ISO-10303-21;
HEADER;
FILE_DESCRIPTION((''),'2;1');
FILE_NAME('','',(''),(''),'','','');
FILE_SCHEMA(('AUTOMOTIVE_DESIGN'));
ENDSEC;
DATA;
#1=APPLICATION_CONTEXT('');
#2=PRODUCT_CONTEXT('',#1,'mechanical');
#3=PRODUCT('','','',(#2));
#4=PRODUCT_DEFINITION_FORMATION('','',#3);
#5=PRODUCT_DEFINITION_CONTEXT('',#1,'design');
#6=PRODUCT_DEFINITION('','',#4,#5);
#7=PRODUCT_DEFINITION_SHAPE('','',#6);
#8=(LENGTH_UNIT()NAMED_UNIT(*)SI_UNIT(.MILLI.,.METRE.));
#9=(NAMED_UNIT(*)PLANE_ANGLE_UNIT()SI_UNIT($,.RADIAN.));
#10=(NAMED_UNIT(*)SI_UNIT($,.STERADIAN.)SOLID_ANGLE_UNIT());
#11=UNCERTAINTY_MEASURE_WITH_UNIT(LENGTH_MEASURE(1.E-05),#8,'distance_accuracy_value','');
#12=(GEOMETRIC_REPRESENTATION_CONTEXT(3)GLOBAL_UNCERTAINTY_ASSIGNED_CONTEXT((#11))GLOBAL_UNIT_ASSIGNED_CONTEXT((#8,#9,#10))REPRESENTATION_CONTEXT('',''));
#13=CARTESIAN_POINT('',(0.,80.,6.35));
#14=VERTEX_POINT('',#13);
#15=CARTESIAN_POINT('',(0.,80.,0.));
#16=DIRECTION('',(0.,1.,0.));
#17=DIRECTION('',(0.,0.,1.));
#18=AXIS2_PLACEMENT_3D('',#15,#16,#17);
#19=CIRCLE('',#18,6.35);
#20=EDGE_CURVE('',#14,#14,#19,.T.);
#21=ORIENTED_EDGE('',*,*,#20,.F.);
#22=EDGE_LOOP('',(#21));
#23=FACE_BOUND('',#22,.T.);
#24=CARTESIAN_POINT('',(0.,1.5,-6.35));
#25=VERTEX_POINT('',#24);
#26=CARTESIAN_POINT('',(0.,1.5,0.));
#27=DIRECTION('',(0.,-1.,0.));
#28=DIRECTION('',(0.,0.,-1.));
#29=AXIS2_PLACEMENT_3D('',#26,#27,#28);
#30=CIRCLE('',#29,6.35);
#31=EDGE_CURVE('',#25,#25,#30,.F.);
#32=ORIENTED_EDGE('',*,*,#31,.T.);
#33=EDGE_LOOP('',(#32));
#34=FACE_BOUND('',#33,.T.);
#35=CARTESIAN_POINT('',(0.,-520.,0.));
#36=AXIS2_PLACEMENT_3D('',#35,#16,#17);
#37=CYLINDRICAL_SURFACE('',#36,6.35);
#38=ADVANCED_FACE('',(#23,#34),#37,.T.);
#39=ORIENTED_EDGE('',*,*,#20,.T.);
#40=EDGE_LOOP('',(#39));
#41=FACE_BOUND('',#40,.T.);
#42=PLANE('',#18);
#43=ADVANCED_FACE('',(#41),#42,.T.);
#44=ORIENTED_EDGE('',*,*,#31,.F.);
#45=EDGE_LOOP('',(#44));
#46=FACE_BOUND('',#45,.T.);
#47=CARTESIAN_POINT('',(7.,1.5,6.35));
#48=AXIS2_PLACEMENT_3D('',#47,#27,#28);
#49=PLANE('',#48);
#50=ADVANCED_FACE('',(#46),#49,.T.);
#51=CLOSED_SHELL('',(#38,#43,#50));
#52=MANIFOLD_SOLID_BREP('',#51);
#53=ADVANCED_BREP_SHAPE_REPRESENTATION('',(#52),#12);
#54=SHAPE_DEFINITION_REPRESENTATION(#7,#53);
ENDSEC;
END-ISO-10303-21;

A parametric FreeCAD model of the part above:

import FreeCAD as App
import Part
import Sketcher

doc = App.newDocument("Part")
body = doc.addObject("PartDesign::Body", "Body")

# Sketch on XZ plane
sketch1 = body.newObject("Sketcher::SketchObject", "Sketch")
sketch1.AttachmentSupport = (doc.getObject("XZ_Plane"), [""])
sketch1.MapMode = "FlatFace"
sketch1.addGeometry(Part.Circle(App.Vector(0, 0, 0), App.Vector(0, 0, 1), 3), False)
sketch1.addConstraint(Sketcher.Constraint("Coincident", 0, 3, -1, 1))
sketch1.addConstraint(Sketcher.Constraint("Diameter", 0, 6.0))
pad1 = body.newObject("PartDesign::Pad", "Pad")
pad1.Profile = sketch1
pad1.Length = 80
pad1.Reversed = True

# Sketch on XZ plane
sketch2 = body.newObject("Sketcher::SketchObject", "Sketch001")
sketch2.AttachmentSupport = (doc.getObject("XZ_Plane"), [""])
sketch2.MapMode = "FlatFace"
sketch2.AttachmentOffset = App.Placement(App.Vector(0, 0, -80), App.Rotation())
sketch2.addGeometry(Part.Circle(App.Vector(0, 0, 0), App.Vector(0, 0, 1), 6), False)
sketch2.addConstraint(Sketcher.Constraint("Coincident", 0, 3, -1, 1))
sketch2.addConstraint(Sketcher.Constraint("Diameter", 0, 12.7))
pad2 = body.newObject("PartDesign::Pad", "Pad001")
pad2.Profile = sketch2
pad2.Length = 600

# Sketch on YZ plane
sketch3 = body.newObject("Sketcher::SketchObject", "Sketch002")
sketch3.AttachmentSupport = (doc.getObject("YZ_Plane"), [""])
sketch3.MapMode = "FlatFace"
sketch3.addGeometry(Part.LineSegment(App.Vector(2, 6, 0), App.Vector(-520, 6, 0)), False)
sketch3.addGeometry(Part.LineSegment(App.Vector(-520, 6, 0), App.Vector(-520, -6, 0)), False)
sketch3.addGeometry(Part.LineSegment(App.Vector(-520, -6, 0), App.Vector(2, -6, 0)), False)
sketch3.addGeometry(Part.LineSegment(App.Vector(2, -6, 0), App.Vector(2, 6, 0)), False)
sketch3.addConstraint(Sketcher.Constraint("Coincident", 0, 2, 1, 1))
sketch3.addConstraint(Sketcher.Constraint("Coincident", 1, 2, 2, 1))
sketch3.addConstraint(Sketcher.Constraint("Coincident", 2, 2, 3, 1))
sketch3.addConstraint(Sketcher.Constraint("Coincident", 3, 2, 0, 1))
sketch3.addConstraint(Sketcher.Constraint("Horizontal", 0))
sketch3.addConstraint(Sketcher.Constraint("Vertical", 1))
sketch3.addConstraint(Sketcher.Constraint("Horizontal", 2))
sketch3.addConstraint(Sketcher.Constraint("Vertical", 3))
sketch3.addConstraint(Sketcher.Constraint("DistanceX", 0, 2, 0, 1, 521.5))
sketch3.addConstraint(Sketcher.Constraint("DistanceY", 1, 2, 1, 1, 12.7))
sketch3.addConstraint(Sketcher.Constraint("DistanceX", 0, 2, -1, 1, 520.0))
sketch3.addConstraint(Sketcher.Constraint("DistanceY", -1, 1, 0, 2, 6.35))
pocket1 = body.newObject("PartDesign::Pocket", "Pocket")
pocket1.Profile = sketch3
pocket1.Type = "ThroughAll"
pocket1.Midplane = True

doc.recompute()
